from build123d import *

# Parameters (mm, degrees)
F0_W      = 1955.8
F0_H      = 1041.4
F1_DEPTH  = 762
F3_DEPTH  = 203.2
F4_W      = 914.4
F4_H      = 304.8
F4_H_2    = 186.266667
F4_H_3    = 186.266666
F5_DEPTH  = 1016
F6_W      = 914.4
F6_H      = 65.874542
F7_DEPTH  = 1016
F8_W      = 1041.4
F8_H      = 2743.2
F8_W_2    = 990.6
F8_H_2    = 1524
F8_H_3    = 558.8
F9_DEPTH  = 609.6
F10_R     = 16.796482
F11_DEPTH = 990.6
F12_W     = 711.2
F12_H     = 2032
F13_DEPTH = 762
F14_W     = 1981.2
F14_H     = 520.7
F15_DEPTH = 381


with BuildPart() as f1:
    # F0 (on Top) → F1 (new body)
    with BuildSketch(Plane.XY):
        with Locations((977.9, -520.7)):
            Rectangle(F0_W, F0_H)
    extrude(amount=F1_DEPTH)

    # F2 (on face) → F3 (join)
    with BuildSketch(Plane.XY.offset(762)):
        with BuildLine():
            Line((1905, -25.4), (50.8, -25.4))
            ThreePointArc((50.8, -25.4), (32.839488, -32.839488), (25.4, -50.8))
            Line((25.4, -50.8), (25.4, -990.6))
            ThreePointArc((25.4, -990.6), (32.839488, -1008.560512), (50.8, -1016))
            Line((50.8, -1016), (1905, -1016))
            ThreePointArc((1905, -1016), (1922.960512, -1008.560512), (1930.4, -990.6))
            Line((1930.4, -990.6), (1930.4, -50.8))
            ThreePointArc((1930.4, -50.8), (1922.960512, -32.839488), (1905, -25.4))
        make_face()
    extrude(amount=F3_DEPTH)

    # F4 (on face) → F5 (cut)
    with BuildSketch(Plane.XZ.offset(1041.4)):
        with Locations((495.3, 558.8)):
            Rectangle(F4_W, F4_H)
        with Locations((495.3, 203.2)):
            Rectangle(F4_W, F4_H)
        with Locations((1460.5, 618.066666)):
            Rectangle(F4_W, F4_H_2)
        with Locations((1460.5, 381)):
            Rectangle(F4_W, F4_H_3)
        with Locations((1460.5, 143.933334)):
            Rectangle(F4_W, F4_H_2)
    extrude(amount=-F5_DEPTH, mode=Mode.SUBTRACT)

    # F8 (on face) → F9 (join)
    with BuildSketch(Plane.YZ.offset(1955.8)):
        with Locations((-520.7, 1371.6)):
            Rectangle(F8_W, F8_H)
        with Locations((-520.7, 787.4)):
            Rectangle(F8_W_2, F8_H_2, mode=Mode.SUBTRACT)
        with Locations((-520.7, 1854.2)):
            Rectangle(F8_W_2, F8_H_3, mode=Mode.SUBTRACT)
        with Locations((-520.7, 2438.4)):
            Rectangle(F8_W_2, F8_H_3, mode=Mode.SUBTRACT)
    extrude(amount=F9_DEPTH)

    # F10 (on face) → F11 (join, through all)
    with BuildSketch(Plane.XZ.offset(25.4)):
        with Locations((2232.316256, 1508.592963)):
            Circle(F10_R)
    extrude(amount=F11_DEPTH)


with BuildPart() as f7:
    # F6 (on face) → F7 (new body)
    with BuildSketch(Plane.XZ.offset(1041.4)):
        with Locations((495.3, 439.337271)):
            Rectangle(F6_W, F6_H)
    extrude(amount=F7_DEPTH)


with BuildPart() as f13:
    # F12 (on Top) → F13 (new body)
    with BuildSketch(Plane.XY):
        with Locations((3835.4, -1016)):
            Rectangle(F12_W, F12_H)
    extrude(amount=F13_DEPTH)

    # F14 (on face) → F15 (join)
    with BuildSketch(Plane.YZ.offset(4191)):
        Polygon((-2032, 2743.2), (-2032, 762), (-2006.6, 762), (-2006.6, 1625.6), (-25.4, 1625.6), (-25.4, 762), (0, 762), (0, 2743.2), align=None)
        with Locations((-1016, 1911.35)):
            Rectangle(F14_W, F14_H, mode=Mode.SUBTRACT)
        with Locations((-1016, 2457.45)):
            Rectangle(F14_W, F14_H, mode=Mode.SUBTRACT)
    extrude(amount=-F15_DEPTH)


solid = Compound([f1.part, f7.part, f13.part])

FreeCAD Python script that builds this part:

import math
import FreeCAD as App
import Part
import Sketcher
from FreeCAD import Vector
Q = App.Units.Quantity

doc = App.newDocument("Part")
params = doc.addObject("Spreadsheet::Sheet", "Params")
for row, (alias, value) in enumerate([
    ("sketch1_width", "77 in"),
    ("sketch1_height", "41 in"),
    ("pad1_length", "30 in"),
    ("sketch2_radius", "1 in"),
    ("sketch2_width", "73 in"),
    ("sketch2_height", "37 in"),
    ("pad2_length", "8 in"),
    ("sketch3_width", "36 in"),
    ("sketch3_height", "12 in"),
    ("pocket1_length", "40 in"),
    ("sketch4_width", "41 in"),
    ("sketch4_width2", "39 in"),
    ("sketch4_height", "108 in"),
    ("sketch4_height2", "60 in"),
    ("sketch4_height3", "22 in"),
    ("pad3_length", "24 in"),
    ("sketch6_width", "36 in"),
    ("pad5_length", "40 in"),
    ("sketch7_width", "28 in"),
    ("sketch7_height", "80 in"),
    ("pad6_length", "30 in"),
    ("sketch8_width", "1 in"),
    ("sketch8_width2", "78 in"),
    ("sketch8_height", "34 in"),
    ("sketch8_height2", "20.5 in"),
    ("pad7_length", "15 in"),
], start=1):
    params.set(f"A{row}", alias)
    params.set(f"B{row}", "=" + value)
    params.setAlias(f"B{row}", alias)

body = doc.addObject("PartDesign::Body", "Body")

sketch1 = body.newObject("Sketcher::SketchObject", "Sketch")
sketch1.AttachmentSupport = (doc.getObject("XY_Plane"), [""])
sketch1.MapMode = "FlatFace"
sketch1.addGeometry([
    Part.LineSegment(Vector(0, 0, 0), Vector(0, -1041.4, 0)),
    Part.LineSegment(Vector(0, -1041.4, 0), Vector(1955.8, -1041.4, 0)),
    Part.LineSegment(Vector(1955.8, -1041.4, 0), Vector(1955.8, 0, 0)),
    Part.LineSegment(Vector(1955.8, 0, 0), Vector(0, 0, 0)),
], False)
sketch1.addConstraint([
    Sketcher.Constraint("Coincident", 0, 2, 1, 1),
    Sketcher.Constraint("Coincident", 1, 2, 2, 1),
    Sketcher.Constraint("Coincident", 2, 2, 3, 1),
    Sketcher.Constraint("Coincident", 3, 2, 0, 1),
    Sketcher.Constraint("Vertical", 0),
    Sketcher.Constraint("Horizontal", 1),
    Sketcher.Constraint("Vertical", 2),
    Sketcher.Constraint("Horizontal", 3),
    Sketcher.Constraint("Coincident", 3, 2, -1, 1),
    Sketcher.Constraint("DistanceX", 1, 1, 1, 2, Q("77 in")),
    Sketcher.Constraint("DistanceY", 0, 2, 0, 1, Q("41 in")),
])
sketch1.setExpression("Constraints[9]", "Params.sketch1_width")
sketch1.setExpression("Constraints[10]", "Params.sketch1_height")
pad1 = body.newObject("PartDesign::Pad", "Pad")
pad1.Profile = sketch1
pad1.setExpression("Length", "Params.pad1_length")

sketch2 = body.newObject("Sketcher::SketchObject", "Sketch001")
sketch2.AttachmentSupport = (doc.getObject("XY_Plane"), [""])
sketch2.MapMode = "FlatFace"
sketch2.AttachmentOffset = App.Placement(Vector(0, 0, 30 * 25.4), App.Rotation())
sketch2.addGeometry([
    Part.LineSegment(Vector(1905, -25.4, 0), Vector(50.8, -25.4, 0)),
    Part.ArcOfCircle(Part.Circle(Vector(50.800001, -50.800001, 0), Vector(0, 0, 1), 25.400001), math.radians(90.000002), math.radians(179.999998)),
    Part.LineSegment(Vector(25.4, -50.8, 0), Vector(25.4, -990.6, 0)),
    Part.ArcOfCircle(Part.Circle(Vector(50.800001, -990.599999, 0), Vector(0, 0, 1), 25.400001), math.radians(-179.999998), math.radians(-90.000002)),
    Part.LineSegment(Vector(50.8, -1016, 0), Vector(1905, -1016, 0)),
    Part.ArcOfCircle(Part.Circle(Vector(1904.999999, -990.599999, 0), Vector(0, 0, 1), 25.400001), math.radians(-89.999998), math.radians(-0.000002)),
    Part.LineSegment(Vector(1930.4, -990.6, 0), Vector(1930.4, -50.8, 0)),
    Part.ArcOfCircle(Part.Circle(Vector(1904.999999, -50.800001, 0), Vector(0, 0, 1), 25.400001), math.radians(0.000002), math.radians(89.999998)),
], False)
sketch2.addConstraint([
    Sketcher.Constraint("Tangent", 0, 2, 1, 1),
    Sketcher.Constraint("Tangent", 1, 2, 2, 1),
    Sketcher.Constraint("Tangent", 2, 2, 3, 1),
    Sketcher.Constraint("Tangent", 3, 2, 4, 1),
    Sketcher.Constraint("Tangent", 4, 2, 5, 1),
    Sketcher.Constraint("Tangent", 5, 2, 6, 1),
    Sketcher.Constraint("Tangent", 6, 2, 7, 1),
    Sketcher.Constraint("Tangent", 7, 2, 0, 1),
    Sketcher.Constraint("Horizontal", 0),
    Sketcher.Constraint("Vertical", 2),
    Sketcher.Constraint("Horizontal", 4),
    Sketcher.Constraint("Vertical", 6),
    Sketcher.Constraint("Equal", 1, 3),
    Sketcher.Constraint("Equal", 3, 5),
    Sketcher.Constraint("Equal", 5, 7),
    Sketcher.Constraint("Radius", 1, Q("1 in")),
    Sketcher.Constraint("DistanceX", 0, 2, 0, 1, Q("73 in")),
    Sketcher.Constraint("DistanceY", 2, 2, 2, 1, Q("37 in")),
    Sketcher.Constraint("DistanceX", -1, 1, 1, 3, Q("2 in")),
    Sketcher.Constraint("DistanceY", 1, 3, -1, 1, Q("2 in")),
])
sketch2.setExpression("Constraints[15]", "Params.sketch2_radius")
sketch2.setExpression("Constraints[16]", "Params.sketch2_width")
sketch2.setExpression("Constraints[17]", "Params.sketch2_height")
pad2 = body.newObject("PartDesign::Pad", "Pad001")
pad2.Profile = sketch2
pad2.setExpression("Length", "Params.pad2_length")

sketch3 = body.newObject("Sketcher::SketchObject", "Sketch002")
sketch3.AttachmentSupport = (doc.getObject("XZ_Plane"), [""])
sketch3.MapMode = "FlatFace"
sketch3.AttachmentOffset = App.Placement(Vector(0, 0, 41 * 25.4), App.Rotation())
sketch3.addGeometry([
    Part.LineSegment(Vector(38.1, 711.2, 0), Vector(38.1, 406.4, 0)),
    Part.LineSegment(Vector(38.1, 406.4, 0), Vector(952.5, 406.4, 0)),
    Part.LineSegment(Vector(952.5, 406.4, 0), Vector(952.5, 711.2, 0)),
    Part.LineSegment(Vector(952.5, 711.2, 0), Vector(38.1, 711.2, 0)),
    Part.LineSegment(Vector(38.1, 355.6, 0), Vector(38.1, 50.8, 0)),
    Part.LineSegment(Vector(38.1, 50.8, 0), Vector(952.5, 50.8, 0)),
    Part.LineSegment(Vector(952.5, 50.8, 0), Vector(952.5, 355.6, 0)),
    Part.LineSegment(Vector(952.5, 355.6, 0), Vector(38.1, 355.6, 0)),
    Part.LineSegment(Vector(1003.3, 711.199999, 0), Vector(1003.3, 524.933333, 0)),
    Part.LineSegment(Vector(1003.3, 524.933333, 0), Vector(1917.7, 524.933333, 0)),
    Part.LineSegment(Vector(1917.7, 524.933333, 0), Vector(1917.7, 711.199999, 0)),
    Part.LineSegment(Vector(1917.7, 711.199999, 0), Vector(1003.3, 711.199999, 0)),
    Part.LineSegment(Vector(1003.3, 474.133333, 0), Vector(1003.3, 287.866667, 0)),
    Part.LineSegment(Vector(1003.3, 287.866667, 0), Vector(1917.7, 287.866667, 0)),
    Part.LineSegment(Vector(1917.7, 287.866667, 0), Vector(1917.7, 474.133333, 0)),
    Part.LineSegment(Vector(1917.7, 474.133333, 0), Vector(1003.3, 474.133333, 0)),
    Part.LineSegment(Vector(1003.3, 237.066667, 0), Vector(1003.3, 50.800001, 0)),
    Part.LineSegment(Vector(1003.3, 50.800001, 0), Vector(1917.7, 50.800001, 0)),
    Part.LineSegment(Vector(1917.7, 50.800001, 0), Vector(1917.7, 237.066667, 0)),
    Part.LineSegment(Vector(1917.7, 237.066667, 0), Vector(1003.3, 237.066667, 0)),
], False)
sketch3.addConstraint([
    Sketcher.Constraint("Coincident", 0, 2, 1, 1),
    Sketcher.Constraint("Coincident", 1, 2, 2, 1),
    Sketcher.Constraint("Coincident", 2, 2, 3, 1),
    Sketcher.Constraint("Coincident", 3, 2, 0, 1),
    Sketcher.Constraint("Coincident", 4, 2, 5, 1),
    Sketcher.Constraint("Coincident", 5, 2, 6, 1),
    Sketcher.Constraint("Coincident", 6, 2, 7, 1),
    Sketcher.Constraint("Coincident", 7, 2, 4, 1),
    Sketcher.Constraint("Coincident", 8, 2, 9, 1),
    Sketcher.Constraint("Coincident", 9, 2, 10, 1),
    Sketcher.Constraint("Coincident", 10, 2, 11, 1),
    Sketcher.Constraint("Coincident", 11, 2, 8, 1),
    Sketcher.Constraint("Coincident", 12, 2, 13, 1),
    Sketcher.Constraint("Coincident", 13, 2, 14, 1),
    Sketcher.Constraint("Coincident", 14, 2, 15, 1),
    Sketcher.Constraint("Coincident", 15, 2, 12, 1),
    Sketcher.Constraint("Coincident", 16, 2, 17, 1),
    Sketcher.Constraint("Coincident", 17, 2, 18, 1),
    Sketcher.Constraint("Coincident", 18, 2, 19, 1),
    Sketcher.Constraint("Coincident", 19, 2, 16, 1),
    Sketcher.Constraint("Vertical", 0),
    Sketcher.Constraint("Horizontal", 1),
    Sketcher.Constraint("Vertical", 2),
    Sketcher.Constraint("Horizontal", 3),
    Sketcher.Constraint("Vertical", 4),
    Sketcher.Constraint("Horizontal", 5),
    Sketcher.Constraint("Vertical", 6),
    Sketcher.Constraint("Horizontal", 7),
    Sketcher.Constraint("Vertical", 8),
    Sketcher.Constraint("Horizontal", 9),
    Sketcher.Constraint("Vertical", 10),
    Sketcher.Constraint("Horizontal", 11),
    Sketcher.Constraint("Vertical", 12),
    Sketcher.Constraint("Horizontal", 13),
    Sketcher.Constraint("Vertical", 14),
    Sketcher.Constraint("Horizontal", 15),
    Sketcher.Constraint("Vertical", 16),
    Sketcher.Constraint("Horizontal", 17),
    Sketcher.Constraint("Vertical", 18),
    Sketcher.Constraint("Horizontal", 19),
    Sketcher.Constraint("Horizontal", 3, 2, 10, 2),
    Sketcher.Constraint("Horizontal", 5, 2, 16, 2),
    Sketcher.Constraint("Vertical", 3, 2, 4, 2),
    Sketcher.Constraint("Vertical", 2, 2, 5, 2),
    Sketcher.Constraint("Vertical", 11, 2, 12, 2),
    Sketcher.Constraint("Vertical", 10, 2, 13, 2),
    Sketcher.Constraint("Vertical", 15, 2, 16, 2),
    Sketcher.Constraint("Vertical", 14, 2, 17, 2),
    Sketcher.Constraint("Equal", 7, 9),
    Sketcher.Constraint("Equal", 2, 4),
    Sketcher.Constraint("Equal", 10, 12),
    Sketcher.Constraint("Equal", 14, 16),
    Sketcher.Constraint("DistanceX", 1, 1, 1, 2, Q("36 in")),
    Sketcher.Constraint("DistanceY", 0, 2, 0, 1, Q("12 in")),
    Sketcher.Constraint("DistanceY", -1, 1, 0, 2, Q("16 in")),
    Sketcher.Constraint("DistanceY", -1, 1, 4, 2, Q("2 in")),
    Sketcher.Constraint("DistanceX", 1, 2, 8, 2, Q("2 in")),
    Sketcher.Constraint("DistanceY", 14, 2, 9, 2, Q("2 in")),
    Sketcher.Constraint("DistanceY", 18, 2, 13, 2, Q("2 in")),
    Sketcher.Constraint("DistanceX", -1, 1, 0, 2, Q("1.5 in")),
])
sketch3.setExpression("Constraints[52]", "Params.sketch3_width")
sketch3.setExpression("Constraints[53]", "Params.sketch3_height")
pocket1 = body.newObject("PartDesign::Pocket", "Pocket")
pocket1.Profile = sketch3
pocket1.setExpression("Length", "Params.pocket1_length")

sketch4 = body.newObject("Sketcher::SketchObject", "Sketch003")
sketch4.AttachmentSupport = (doc.getObject("YZ_Plane"), [""])
sketch4.MapMode = "FlatFace"
sketch4.AttachmentOffset = App.Placement(Vector(0, 0, 77 * 25.4), App.Rotation())
sketch4.addGeometry([
    Part.LineSegment(Vector(-1041.4, 2743.2, 0), Vector(-1041.4, 0, 0)),
    Part.LineSegment(Vector(-1041.4, 0, 0), Vector(0, 0, 0)),
    Part.LineSegment(Vector(0, 0, 0), Vector(0, 2743.2, 0)),
    Part.LineSegment(Vector(0, 2743.2, 0), Vector(-1041.4, 2743.2, 0)),
    Part.LineSegment(Vector(-25.4, 25.4, 0), Vector(-1016, 25.4, 0)),
    Part.LineSegment(Vector(-1016, 25.4, 0), Vector(-1016, 1549.4, 0)),
    Part.LineSegment(Vector(-1016, 1549.4, 0), Vector(-25.4, 1549.4, 0)),
    Part.LineSegment(Vector(-25.4, 1549.4, 0), Vector(-25.4, 25.4, 0)),
    Part.LineSegment(Vector(-25.4, 1574.8, 0), Vector(-1016, 1574.8, 0)),
    Part.LineSegment(Vector(-1016, 1574.8, 0), Vector(-1016, 2133.6, 0)),
    Part.LineSegment(Vector(-1016, 2133.6, 0), Vector(-25.4, 2133.6, 0)),
    Part.LineSegment(Vector(-25.4, 2133.6, 0), Vector(-25.4, 1574.8, 0)),
    Part.LineSegment(Vector(-25.4, 2159, 0), Vector(-1016, 2159, 0)),
    Part.LineSegment(Vector(-1016, 2159, 0), Vector(-1016, 2717.8, 0)),
    Part.LineSegment(Vector(-1016, 2717.8, 0), Vector(-25.4, 2717.8, 0)),
    Part.LineSegment(Vector(-25.4, 2717.8, 0), Vector(-25.4, 2159, 0)),
], False)
sketch4.addConstraint([
    Sketcher.Constraint("Coincident", 0, 2, 1, 1),
    Sketcher.Constraint("Coincident", 1, 2, 2, 1),
    Sketcher.Constraint("Coincident", 2, 2, 3, 1),
    Sketcher.Constraint("Coincident", 3, 2, 0, 1),
    Sketcher.Constraint("Coincident", 4, 2, 5, 1),
    Sketcher.Constraint("Coincident", 5, 2, 6, 1),
    Sketcher.Constraint("Coincident", 6, 2, 7, 1),
    Sketcher.Constraint("Coincident", 7, 2, 4, 1),
    Sketcher.Constraint("Coincident", 8, 2, 9, 1),
    Sketcher.Constraint("Coincident", 9, 2, 10, 1),
    Sketcher.Constraint("Coincident", 10, 2, 11, 1),
    Sketcher.Constraint("Coincident", 11, 2, 8, 1),
    Sketcher.Constraint("Coincident", 12, 2, 13, 1),
    Sketcher.Constraint("Coincident", 13, 2, 14, 1),
    Sketcher.Constraint("Coincident", 14, 2, 15, 1),
    Sketcher.Constraint("Coincident", 15, 2, 12, 1),
    Sketcher.Constraint("Vertical", 0),
    Sketcher.Constraint("Horizontal", 1),
    Sketcher.Constraint("Vertical", 2),
    Sketcher.Constraint("Horizontal", 3),
    Sketcher.Constraint("Horizontal", 4),
    Sketcher.Constraint("Vertical", 5),
    Sketcher.Constraint("Horizontal", 6),
    Sketcher.Constraint("Vertical", 7),
    Sketcher.Constraint("Horizontal", 8),
    Sketcher.Constraint("Vertical", 9),
    Sketcher.Constraint("Horizontal", 10),
    Sketcher.Constraint("Vertical", 11),
    Sketcher.Constraint("Horizontal", 12),
    Sketcher.Constraint("Vertical", 13),
    Sketcher.Constraint("Horizontal", 14),
    Sketcher.Constraint("Vertical", 15),
    Sketcher.Constraint("Coincident", 1, 2, -1, 1),
    Sketcher.Constraint("Vertical", 5, 2, 8, 2),
    Sketcher.Constraint("Vertical", 7, 2, 10, 2),
    Sketcher.Constraint("Vertical", 9, 2, 12, 2),
    Sketcher.Constraint("Vertical", 11, 2, 14, 2),
    Sketcher.Constraint("Equal", 11, 13),
    Sketcher.Constraint("DistanceX", 1, 1, 1, 2, Q("41 in")),
    Sketcher.Constraint("DistanceX", 4, 2, 4, 1, Q("39 in")),
    Sketcher.Constraint("DistanceY", 0, 2, 0, 1, Q("108 in")),
    Sketcher.Constraint("DistanceY", 5, 1, 5, 2, Q("60 in")),
    Sketcher.Constraint("DistanceY", 9, 1, 9, 2, Q("22 in")),
    Sketcher.Constraint("DistanceX", 4, 2, -1, 1, Q("40 in")),
    Sketcher.Constraint("DistanceY", -1, 1, 4, 2, Q("1 in")),
    Sketcher.Constraint("DistanceY", -1, 1, 8, 2, Q("62 in")),
    Sketcher.Constraint("DistanceY", -1, 1, 12, 2, Q("85 in")),
])
sketch4.setExpression("Constraints[38]", "Params.sketch4_width")
sketch4.setExpression("Constraints[39]", "Params.sketch4_width2")
sketch4.setExpression("Constraints[40]", "Params.sketch4_height")
sketch4.setExpression("Constraints[41]", "Params.sketch4_height2")
sketch4.setExpression("Constraints[42]", "Params.sketch4_height3")
pad3 = body.newObject("PartDesign::Pad", "Pad002")
pad3.Profile = sketch4
pad3.setExpression("Length", "Params.pad3_length")

sketch5 = body.newObject("Sketcher::SketchObject", "Sketch004")
sketch5.AttachmentSupport = (doc.getObject("XZ_Plane"), [""])
sketch5.MapMode = "FlatFace"
sketch5.AttachmentOffset = App.Placement(Vector(0, 0, 1 * 25.4), App.Rotation())
sketch5.addGeometry(Part.Circle(Vector(2232.316256, 1508.592963, 0), Vector(0, 0, 1), 16.796482), False)
sketch5.addConstraint([
    Sketcher.Constraint("Diameter", 0, 33.592964),
    Sketcher.Constraint("DistanceX", -1, 1, 0, 3, 2232.316256),
    Sketcher.Constraint("DistanceY", -1, 1, 0, 3, 1508.592963),
])
pad4 = body.newObject("PartDesign::Pad", "Pad003")
pad4.Profile = sketch5
pad4.Type = "UpToLast"
body2 = doc.addObject("PartDesign::Body", "Body001")

sketch6 = body2.newObject("Sketcher::SketchObject", "Sketch005")
sketch6.AttachmentSupport = (doc.getObject("XZ_Plane001"), [""])
sketch6.MapMode = "FlatFace"
sketch6.AttachmentOffset = App.Placement(Vector(0, 0, 41 * 25.4), App.Rotation())
sketch6.addGeometry([
    Part.LineSegment(Vector(38.1, 472.274542, 0), Vector(38.1, 406.4, 0)),
    Part.LineSegment(Vector(38.1, 406.4, 0), Vector(952.5, 406.4, 0)),
    Part.LineSegment(Vector(952.5, 406.4, 0), Vector(952.5, 472.274542, 0)),
    Part.LineSegment(Vector(952.5, 472.274542, 0), Vector(38.1, 472.274542, 0)),
], False)
sketch6.addConstraint([
    Sketcher.Constraint("Coincident", 0, 2, 1, 1),
    Sketcher.Constraint("Coincident", 1, 2, 2, 1),
    Sketcher.Constraint("Coincident", 2, 2, 3, 1),
    Sketcher.Constraint("Coincident", 3, 2, 0, 1),
    Sketcher.Constraint("Vertical", 0),
    Sketcher.Constraint("Horizontal", 1),
    Sketcher.Constraint("Vertical", 2),
    Sketcher.Constraint("Horizontal", 3),
    Sketcher.Constraint("DistanceX", 1, 1, 1, 2, Q("36 in")),
    Sketcher.Constraint("DistanceY", -1, 1, 0, 2, Q("16 in")),
    Sketcher.Constraint("DistanceX", -1, 1, 0, 2, Q("1.5 in")),
    Sketcher.Constraint("DistanceY", 0, 2, 0, 1, 65.874542),
])
sketch6.setExpression("Constraints[8]", "Params.sketch6_width")
pad5 = body2.newObject("PartDesign::Pad", "Pad004")
pad5.Profile = sketch6
pad5.setExpression("Length", "Params.pad5_length")
body3 = doc.addObject("PartDesign::Body", "Body002")

sketch7 = body3.newObject("Sketcher::SketchObject", "Sketch006")
sketch7.AttachmentSupport = (doc.getObject("XY_Plane002"), [""])
sketch7.MapMode = "FlatFace"
sketch7.addGeometry([
    Part.LineSegment(Vector(3479.8, 0, 0), Vector(3479.8, -2032, 0)),
    Part.LineSegment(Vector(3479.8, -2032, 0), Vector(4191, -2032, 0)),
    Part.LineSegment(Vector(4191, -2032, 0), Vector(4191, 0, 0)),
    Part.LineSegment(Vector(4191, 0, 0), Vector(3479.8, 0, 0)),
], False)
sketch7.addConstraint([
    Sketcher.Constraint("Coincident", 0, 2, 1, 1),
    Sketcher.Constraint("Coincident", 1, 2, 2, 1),
    Sketcher.Constraint("Coincident", 2, 2, 3, 1),
    Sketcher.Constraint("Coincident", 3, 2, 0, 1),
    Sketcher.Constraint("Vertical", 0),
    Sketcher.Constraint("Horizontal", 1),
    Sketcher.Constraint("Vertical", 2),
    Sketcher.Constraint("Horizontal", 3),
    Sketcher.Constraint("PointOnObject", 2, 2, -1),
    Sketcher.Constraint("DistanceX", 1, 1, 1, 2, Q("28 in")),
    Sketcher.Constraint("DistanceY", 0, 2, 0, 1, Q("80 in")),
    Sketcher.Constraint("DistanceX", -1, 1, 0, 2, Q("137 in")),
])
sketch7.setExpression("Constraints[9]", "Params.sketch7_width")
sketch7.setExpression("Constraints[10]", "Params.sketch7_height")
pad6 = body3.newObject("PartDesign::Pad", "Pad005")
pad6.Profile = sketch7
pad6.setExpression("Length", "Params.pad6_length")

sketch8 = body3.newObject("Sketcher::SketchObject", "Sketch007")
sketch8.AttachmentSupport = (doc.getObject("YZ_Plane002"), [""])
sketch8.MapMode = "FlatFace"
sketch8.AttachmentOffset = App.Placement(Vector(0, 0, 165 * 25.4), App.Rotation())
sketch8.addGeometry([
    Part.LineSegment(Vector(-2032, 2743.2, 0), Vector(-2032, 762, 0)),
    Part.LineSegment(Vector(-2032, 762, 0), Vector(-2006.6, 762, 0)),
    Part.LineSegment(Vector(-2006.6, 762, 0), Vector(-2006.6, 1625.6, 0)),
    Part.LineSegment(Vector(-2006.6, 1625.6, 0), Vector(-25.4, 1625.6, 0)),
    Part.LineSegment(Vector(-25.4, 1625.6, 0), Vector(-25.4, 762, 0)),
    Part.LineSegment(Vector(-25.4, 762, 0), Vector(0, 762, 0)),
    Part.LineSegment(Vector(0, 762, 0), Vector(0, 2743.2, 0)),
    Part.LineSegment(Vector(0, 2743.2, 0), Vector(-2032, 2743.2, 0)),
    Part.LineSegment(Vector(-25.4, 1651, 0), Vector(-2006.6, 1651, 0)),
    Part.LineSegment(Vector(-2006.6, 1651, 0), Vector(-2006.6, 2171.7, 0)),
    Part.LineSegment(Vector(-2006.6, 2171.7, 0), Vector(-25.4, 2171.7, 0)),
    Part.LineSegment(Vector(-25.4, 2171.7, 0), Vector(-25.4, 1651, 0)),
    Part.LineSegment(Vector(-25.4, 2197.1, 0), Vector(-2006.6, 2197.1, 0)),
    Part.LineSegment(Vector(-2006.6, 2197.1, 0), Vector(-2006.6, 2717.8, 0)),
    Part.LineSegment(Vector(-2006.6, 2717.8, 0), Vector(-25.4, 2717.8, 0)),
    Part.LineSegment(Vector(-25.4, 2717.8, 0), Vector(-25.4, 2197.1, 0)),
], False)
sketch8.addConstraint([
    Sketcher.Constraint("Coincident", 0, 2, 1, 1),
    Sketcher.Constraint("Coincident", 1, 2, 2, 1),
    Sketcher.Constraint("Coincident", 2, 2, 3, 1),
    Sketcher.Constraint("Coincident", 3, 2, 4, 1),
    Sketcher.Constraint("Coincident", 4, 2, 5, 1),
    Sketcher.Constraint("Coincident", 5, 2, 6, 1),
    Sketcher.Constraint("Coincident", 6, 2, 7, 1),
    Sketcher.Constraint("Coincident", 7, 2, 0, 1),
    Sketcher.Constraint("Coincident", 8, 2, 9, 1),
    Sketcher.Constraint("Coincident", 9, 2, 10, 1),
    Sketcher.Constraint("Coincident", 10, 2, 11, 1),
    Sketcher.Constraint("Coincident", 11, 2, 8, 1),
    Sketcher.Constraint("Coincident", 12, 2, 13, 1),
    Sketcher.Constraint("Coincident", 13, 2, 14, 1),
    Sketcher.Constraint("Coincident", 14, 2, 15, 1),
    Sketcher.Constraint("Coincident", 15, 2, 12, 1),
    Sketcher.Constraint("Vertical", 0),
    Sketcher.Constraint("Horizontal", 1),
    Sketcher.Constraint("Vertical", 2),
    Sketcher.Constraint("Horizontal", 3),
    Sketcher.Constraint("Vertical", 4),
    Sketcher.Constraint("Horizontal", 5),
    Sketcher.Constraint("Vertical", 6),
    Sketcher.Constraint("Horizontal", 7),
    Sketcher.Constraint("Horizontal", 8),
    Sketcher.Constraint("Vertical", 9),
    Sketcher.Constraint("Horizontal", 10),
    Sketcher.Constraint("Vertical", 11),
    Sketcher.Constraint("Horizontal", 12),
    Sketcher.Constraint("Vertical", 13),
    Sketcher.Constraint("Horizontal", 14),
    Sketcher.Constraint("Vertical", 15),
    Sketcher.Constraint("PointOnObject", 5, 2, -2),
    Sketcher.Constraint("Horizontal", 1, 2, 4, 2),
    Sketcher.Constraint("Vertical", 2, 2, 8, 2),
    Sketcher.Constraint("Vertical", 4, 2, 10, 2),
    Sketcher.Constraint("Vertical", 9, 2, 12, 2),
    Sketcher.Constraint("Vertical", 11, 2, 14, 2),
    Sketcher.Constraint("Equal", 1, 5),
    Sketcher.Constraint("Equal", 14, 0),
    Sketcher.Constraint("Equal", 11, 13),
    Sketcher.Constraint("DistanceX", 1, 1, 1, 2, Q("1 in")),
    Sketcher.Constraint("DistanceX", 3, 1, 3, 2, Q("78 in")),
    Sketcher.Constraint("DistanceY", 2, 1, 2, 2, Q("34 in")),
    Sketcher.Constraint("DistanceY", 9, 1, 9, 2, Q("20.5 in")),
    Sketcher.Constraint("DistanceY", -1, 1, 0, 2, Q("30 in")),
    Sketcher.Constraint("DistanceY", -1, 1, 8, 2, Q("65 in")),
    Sketcher.Constraint("DistanceY", -1, 1, 13, 2, Q("107 in")),
])
sketch8.setExpression("Constraints[41]", "Params.sketch8_width")
sketch8.setExpression("Constraints[42]", "Params.sketch8_width2")
sketch8.setExpression("Constraints[43]", "Params.sketch8_height")
sketch8.setExpression("Constraints[44]", "Params.sketch8_height2")
pad7 = body3.newObject("PartDesign::Pad", "Pad006")
pad7.Profile = sketch8
pad7.setExpression("Length", "Params.pad7_length")
pad7.Reversed = True

doc.recompute()
